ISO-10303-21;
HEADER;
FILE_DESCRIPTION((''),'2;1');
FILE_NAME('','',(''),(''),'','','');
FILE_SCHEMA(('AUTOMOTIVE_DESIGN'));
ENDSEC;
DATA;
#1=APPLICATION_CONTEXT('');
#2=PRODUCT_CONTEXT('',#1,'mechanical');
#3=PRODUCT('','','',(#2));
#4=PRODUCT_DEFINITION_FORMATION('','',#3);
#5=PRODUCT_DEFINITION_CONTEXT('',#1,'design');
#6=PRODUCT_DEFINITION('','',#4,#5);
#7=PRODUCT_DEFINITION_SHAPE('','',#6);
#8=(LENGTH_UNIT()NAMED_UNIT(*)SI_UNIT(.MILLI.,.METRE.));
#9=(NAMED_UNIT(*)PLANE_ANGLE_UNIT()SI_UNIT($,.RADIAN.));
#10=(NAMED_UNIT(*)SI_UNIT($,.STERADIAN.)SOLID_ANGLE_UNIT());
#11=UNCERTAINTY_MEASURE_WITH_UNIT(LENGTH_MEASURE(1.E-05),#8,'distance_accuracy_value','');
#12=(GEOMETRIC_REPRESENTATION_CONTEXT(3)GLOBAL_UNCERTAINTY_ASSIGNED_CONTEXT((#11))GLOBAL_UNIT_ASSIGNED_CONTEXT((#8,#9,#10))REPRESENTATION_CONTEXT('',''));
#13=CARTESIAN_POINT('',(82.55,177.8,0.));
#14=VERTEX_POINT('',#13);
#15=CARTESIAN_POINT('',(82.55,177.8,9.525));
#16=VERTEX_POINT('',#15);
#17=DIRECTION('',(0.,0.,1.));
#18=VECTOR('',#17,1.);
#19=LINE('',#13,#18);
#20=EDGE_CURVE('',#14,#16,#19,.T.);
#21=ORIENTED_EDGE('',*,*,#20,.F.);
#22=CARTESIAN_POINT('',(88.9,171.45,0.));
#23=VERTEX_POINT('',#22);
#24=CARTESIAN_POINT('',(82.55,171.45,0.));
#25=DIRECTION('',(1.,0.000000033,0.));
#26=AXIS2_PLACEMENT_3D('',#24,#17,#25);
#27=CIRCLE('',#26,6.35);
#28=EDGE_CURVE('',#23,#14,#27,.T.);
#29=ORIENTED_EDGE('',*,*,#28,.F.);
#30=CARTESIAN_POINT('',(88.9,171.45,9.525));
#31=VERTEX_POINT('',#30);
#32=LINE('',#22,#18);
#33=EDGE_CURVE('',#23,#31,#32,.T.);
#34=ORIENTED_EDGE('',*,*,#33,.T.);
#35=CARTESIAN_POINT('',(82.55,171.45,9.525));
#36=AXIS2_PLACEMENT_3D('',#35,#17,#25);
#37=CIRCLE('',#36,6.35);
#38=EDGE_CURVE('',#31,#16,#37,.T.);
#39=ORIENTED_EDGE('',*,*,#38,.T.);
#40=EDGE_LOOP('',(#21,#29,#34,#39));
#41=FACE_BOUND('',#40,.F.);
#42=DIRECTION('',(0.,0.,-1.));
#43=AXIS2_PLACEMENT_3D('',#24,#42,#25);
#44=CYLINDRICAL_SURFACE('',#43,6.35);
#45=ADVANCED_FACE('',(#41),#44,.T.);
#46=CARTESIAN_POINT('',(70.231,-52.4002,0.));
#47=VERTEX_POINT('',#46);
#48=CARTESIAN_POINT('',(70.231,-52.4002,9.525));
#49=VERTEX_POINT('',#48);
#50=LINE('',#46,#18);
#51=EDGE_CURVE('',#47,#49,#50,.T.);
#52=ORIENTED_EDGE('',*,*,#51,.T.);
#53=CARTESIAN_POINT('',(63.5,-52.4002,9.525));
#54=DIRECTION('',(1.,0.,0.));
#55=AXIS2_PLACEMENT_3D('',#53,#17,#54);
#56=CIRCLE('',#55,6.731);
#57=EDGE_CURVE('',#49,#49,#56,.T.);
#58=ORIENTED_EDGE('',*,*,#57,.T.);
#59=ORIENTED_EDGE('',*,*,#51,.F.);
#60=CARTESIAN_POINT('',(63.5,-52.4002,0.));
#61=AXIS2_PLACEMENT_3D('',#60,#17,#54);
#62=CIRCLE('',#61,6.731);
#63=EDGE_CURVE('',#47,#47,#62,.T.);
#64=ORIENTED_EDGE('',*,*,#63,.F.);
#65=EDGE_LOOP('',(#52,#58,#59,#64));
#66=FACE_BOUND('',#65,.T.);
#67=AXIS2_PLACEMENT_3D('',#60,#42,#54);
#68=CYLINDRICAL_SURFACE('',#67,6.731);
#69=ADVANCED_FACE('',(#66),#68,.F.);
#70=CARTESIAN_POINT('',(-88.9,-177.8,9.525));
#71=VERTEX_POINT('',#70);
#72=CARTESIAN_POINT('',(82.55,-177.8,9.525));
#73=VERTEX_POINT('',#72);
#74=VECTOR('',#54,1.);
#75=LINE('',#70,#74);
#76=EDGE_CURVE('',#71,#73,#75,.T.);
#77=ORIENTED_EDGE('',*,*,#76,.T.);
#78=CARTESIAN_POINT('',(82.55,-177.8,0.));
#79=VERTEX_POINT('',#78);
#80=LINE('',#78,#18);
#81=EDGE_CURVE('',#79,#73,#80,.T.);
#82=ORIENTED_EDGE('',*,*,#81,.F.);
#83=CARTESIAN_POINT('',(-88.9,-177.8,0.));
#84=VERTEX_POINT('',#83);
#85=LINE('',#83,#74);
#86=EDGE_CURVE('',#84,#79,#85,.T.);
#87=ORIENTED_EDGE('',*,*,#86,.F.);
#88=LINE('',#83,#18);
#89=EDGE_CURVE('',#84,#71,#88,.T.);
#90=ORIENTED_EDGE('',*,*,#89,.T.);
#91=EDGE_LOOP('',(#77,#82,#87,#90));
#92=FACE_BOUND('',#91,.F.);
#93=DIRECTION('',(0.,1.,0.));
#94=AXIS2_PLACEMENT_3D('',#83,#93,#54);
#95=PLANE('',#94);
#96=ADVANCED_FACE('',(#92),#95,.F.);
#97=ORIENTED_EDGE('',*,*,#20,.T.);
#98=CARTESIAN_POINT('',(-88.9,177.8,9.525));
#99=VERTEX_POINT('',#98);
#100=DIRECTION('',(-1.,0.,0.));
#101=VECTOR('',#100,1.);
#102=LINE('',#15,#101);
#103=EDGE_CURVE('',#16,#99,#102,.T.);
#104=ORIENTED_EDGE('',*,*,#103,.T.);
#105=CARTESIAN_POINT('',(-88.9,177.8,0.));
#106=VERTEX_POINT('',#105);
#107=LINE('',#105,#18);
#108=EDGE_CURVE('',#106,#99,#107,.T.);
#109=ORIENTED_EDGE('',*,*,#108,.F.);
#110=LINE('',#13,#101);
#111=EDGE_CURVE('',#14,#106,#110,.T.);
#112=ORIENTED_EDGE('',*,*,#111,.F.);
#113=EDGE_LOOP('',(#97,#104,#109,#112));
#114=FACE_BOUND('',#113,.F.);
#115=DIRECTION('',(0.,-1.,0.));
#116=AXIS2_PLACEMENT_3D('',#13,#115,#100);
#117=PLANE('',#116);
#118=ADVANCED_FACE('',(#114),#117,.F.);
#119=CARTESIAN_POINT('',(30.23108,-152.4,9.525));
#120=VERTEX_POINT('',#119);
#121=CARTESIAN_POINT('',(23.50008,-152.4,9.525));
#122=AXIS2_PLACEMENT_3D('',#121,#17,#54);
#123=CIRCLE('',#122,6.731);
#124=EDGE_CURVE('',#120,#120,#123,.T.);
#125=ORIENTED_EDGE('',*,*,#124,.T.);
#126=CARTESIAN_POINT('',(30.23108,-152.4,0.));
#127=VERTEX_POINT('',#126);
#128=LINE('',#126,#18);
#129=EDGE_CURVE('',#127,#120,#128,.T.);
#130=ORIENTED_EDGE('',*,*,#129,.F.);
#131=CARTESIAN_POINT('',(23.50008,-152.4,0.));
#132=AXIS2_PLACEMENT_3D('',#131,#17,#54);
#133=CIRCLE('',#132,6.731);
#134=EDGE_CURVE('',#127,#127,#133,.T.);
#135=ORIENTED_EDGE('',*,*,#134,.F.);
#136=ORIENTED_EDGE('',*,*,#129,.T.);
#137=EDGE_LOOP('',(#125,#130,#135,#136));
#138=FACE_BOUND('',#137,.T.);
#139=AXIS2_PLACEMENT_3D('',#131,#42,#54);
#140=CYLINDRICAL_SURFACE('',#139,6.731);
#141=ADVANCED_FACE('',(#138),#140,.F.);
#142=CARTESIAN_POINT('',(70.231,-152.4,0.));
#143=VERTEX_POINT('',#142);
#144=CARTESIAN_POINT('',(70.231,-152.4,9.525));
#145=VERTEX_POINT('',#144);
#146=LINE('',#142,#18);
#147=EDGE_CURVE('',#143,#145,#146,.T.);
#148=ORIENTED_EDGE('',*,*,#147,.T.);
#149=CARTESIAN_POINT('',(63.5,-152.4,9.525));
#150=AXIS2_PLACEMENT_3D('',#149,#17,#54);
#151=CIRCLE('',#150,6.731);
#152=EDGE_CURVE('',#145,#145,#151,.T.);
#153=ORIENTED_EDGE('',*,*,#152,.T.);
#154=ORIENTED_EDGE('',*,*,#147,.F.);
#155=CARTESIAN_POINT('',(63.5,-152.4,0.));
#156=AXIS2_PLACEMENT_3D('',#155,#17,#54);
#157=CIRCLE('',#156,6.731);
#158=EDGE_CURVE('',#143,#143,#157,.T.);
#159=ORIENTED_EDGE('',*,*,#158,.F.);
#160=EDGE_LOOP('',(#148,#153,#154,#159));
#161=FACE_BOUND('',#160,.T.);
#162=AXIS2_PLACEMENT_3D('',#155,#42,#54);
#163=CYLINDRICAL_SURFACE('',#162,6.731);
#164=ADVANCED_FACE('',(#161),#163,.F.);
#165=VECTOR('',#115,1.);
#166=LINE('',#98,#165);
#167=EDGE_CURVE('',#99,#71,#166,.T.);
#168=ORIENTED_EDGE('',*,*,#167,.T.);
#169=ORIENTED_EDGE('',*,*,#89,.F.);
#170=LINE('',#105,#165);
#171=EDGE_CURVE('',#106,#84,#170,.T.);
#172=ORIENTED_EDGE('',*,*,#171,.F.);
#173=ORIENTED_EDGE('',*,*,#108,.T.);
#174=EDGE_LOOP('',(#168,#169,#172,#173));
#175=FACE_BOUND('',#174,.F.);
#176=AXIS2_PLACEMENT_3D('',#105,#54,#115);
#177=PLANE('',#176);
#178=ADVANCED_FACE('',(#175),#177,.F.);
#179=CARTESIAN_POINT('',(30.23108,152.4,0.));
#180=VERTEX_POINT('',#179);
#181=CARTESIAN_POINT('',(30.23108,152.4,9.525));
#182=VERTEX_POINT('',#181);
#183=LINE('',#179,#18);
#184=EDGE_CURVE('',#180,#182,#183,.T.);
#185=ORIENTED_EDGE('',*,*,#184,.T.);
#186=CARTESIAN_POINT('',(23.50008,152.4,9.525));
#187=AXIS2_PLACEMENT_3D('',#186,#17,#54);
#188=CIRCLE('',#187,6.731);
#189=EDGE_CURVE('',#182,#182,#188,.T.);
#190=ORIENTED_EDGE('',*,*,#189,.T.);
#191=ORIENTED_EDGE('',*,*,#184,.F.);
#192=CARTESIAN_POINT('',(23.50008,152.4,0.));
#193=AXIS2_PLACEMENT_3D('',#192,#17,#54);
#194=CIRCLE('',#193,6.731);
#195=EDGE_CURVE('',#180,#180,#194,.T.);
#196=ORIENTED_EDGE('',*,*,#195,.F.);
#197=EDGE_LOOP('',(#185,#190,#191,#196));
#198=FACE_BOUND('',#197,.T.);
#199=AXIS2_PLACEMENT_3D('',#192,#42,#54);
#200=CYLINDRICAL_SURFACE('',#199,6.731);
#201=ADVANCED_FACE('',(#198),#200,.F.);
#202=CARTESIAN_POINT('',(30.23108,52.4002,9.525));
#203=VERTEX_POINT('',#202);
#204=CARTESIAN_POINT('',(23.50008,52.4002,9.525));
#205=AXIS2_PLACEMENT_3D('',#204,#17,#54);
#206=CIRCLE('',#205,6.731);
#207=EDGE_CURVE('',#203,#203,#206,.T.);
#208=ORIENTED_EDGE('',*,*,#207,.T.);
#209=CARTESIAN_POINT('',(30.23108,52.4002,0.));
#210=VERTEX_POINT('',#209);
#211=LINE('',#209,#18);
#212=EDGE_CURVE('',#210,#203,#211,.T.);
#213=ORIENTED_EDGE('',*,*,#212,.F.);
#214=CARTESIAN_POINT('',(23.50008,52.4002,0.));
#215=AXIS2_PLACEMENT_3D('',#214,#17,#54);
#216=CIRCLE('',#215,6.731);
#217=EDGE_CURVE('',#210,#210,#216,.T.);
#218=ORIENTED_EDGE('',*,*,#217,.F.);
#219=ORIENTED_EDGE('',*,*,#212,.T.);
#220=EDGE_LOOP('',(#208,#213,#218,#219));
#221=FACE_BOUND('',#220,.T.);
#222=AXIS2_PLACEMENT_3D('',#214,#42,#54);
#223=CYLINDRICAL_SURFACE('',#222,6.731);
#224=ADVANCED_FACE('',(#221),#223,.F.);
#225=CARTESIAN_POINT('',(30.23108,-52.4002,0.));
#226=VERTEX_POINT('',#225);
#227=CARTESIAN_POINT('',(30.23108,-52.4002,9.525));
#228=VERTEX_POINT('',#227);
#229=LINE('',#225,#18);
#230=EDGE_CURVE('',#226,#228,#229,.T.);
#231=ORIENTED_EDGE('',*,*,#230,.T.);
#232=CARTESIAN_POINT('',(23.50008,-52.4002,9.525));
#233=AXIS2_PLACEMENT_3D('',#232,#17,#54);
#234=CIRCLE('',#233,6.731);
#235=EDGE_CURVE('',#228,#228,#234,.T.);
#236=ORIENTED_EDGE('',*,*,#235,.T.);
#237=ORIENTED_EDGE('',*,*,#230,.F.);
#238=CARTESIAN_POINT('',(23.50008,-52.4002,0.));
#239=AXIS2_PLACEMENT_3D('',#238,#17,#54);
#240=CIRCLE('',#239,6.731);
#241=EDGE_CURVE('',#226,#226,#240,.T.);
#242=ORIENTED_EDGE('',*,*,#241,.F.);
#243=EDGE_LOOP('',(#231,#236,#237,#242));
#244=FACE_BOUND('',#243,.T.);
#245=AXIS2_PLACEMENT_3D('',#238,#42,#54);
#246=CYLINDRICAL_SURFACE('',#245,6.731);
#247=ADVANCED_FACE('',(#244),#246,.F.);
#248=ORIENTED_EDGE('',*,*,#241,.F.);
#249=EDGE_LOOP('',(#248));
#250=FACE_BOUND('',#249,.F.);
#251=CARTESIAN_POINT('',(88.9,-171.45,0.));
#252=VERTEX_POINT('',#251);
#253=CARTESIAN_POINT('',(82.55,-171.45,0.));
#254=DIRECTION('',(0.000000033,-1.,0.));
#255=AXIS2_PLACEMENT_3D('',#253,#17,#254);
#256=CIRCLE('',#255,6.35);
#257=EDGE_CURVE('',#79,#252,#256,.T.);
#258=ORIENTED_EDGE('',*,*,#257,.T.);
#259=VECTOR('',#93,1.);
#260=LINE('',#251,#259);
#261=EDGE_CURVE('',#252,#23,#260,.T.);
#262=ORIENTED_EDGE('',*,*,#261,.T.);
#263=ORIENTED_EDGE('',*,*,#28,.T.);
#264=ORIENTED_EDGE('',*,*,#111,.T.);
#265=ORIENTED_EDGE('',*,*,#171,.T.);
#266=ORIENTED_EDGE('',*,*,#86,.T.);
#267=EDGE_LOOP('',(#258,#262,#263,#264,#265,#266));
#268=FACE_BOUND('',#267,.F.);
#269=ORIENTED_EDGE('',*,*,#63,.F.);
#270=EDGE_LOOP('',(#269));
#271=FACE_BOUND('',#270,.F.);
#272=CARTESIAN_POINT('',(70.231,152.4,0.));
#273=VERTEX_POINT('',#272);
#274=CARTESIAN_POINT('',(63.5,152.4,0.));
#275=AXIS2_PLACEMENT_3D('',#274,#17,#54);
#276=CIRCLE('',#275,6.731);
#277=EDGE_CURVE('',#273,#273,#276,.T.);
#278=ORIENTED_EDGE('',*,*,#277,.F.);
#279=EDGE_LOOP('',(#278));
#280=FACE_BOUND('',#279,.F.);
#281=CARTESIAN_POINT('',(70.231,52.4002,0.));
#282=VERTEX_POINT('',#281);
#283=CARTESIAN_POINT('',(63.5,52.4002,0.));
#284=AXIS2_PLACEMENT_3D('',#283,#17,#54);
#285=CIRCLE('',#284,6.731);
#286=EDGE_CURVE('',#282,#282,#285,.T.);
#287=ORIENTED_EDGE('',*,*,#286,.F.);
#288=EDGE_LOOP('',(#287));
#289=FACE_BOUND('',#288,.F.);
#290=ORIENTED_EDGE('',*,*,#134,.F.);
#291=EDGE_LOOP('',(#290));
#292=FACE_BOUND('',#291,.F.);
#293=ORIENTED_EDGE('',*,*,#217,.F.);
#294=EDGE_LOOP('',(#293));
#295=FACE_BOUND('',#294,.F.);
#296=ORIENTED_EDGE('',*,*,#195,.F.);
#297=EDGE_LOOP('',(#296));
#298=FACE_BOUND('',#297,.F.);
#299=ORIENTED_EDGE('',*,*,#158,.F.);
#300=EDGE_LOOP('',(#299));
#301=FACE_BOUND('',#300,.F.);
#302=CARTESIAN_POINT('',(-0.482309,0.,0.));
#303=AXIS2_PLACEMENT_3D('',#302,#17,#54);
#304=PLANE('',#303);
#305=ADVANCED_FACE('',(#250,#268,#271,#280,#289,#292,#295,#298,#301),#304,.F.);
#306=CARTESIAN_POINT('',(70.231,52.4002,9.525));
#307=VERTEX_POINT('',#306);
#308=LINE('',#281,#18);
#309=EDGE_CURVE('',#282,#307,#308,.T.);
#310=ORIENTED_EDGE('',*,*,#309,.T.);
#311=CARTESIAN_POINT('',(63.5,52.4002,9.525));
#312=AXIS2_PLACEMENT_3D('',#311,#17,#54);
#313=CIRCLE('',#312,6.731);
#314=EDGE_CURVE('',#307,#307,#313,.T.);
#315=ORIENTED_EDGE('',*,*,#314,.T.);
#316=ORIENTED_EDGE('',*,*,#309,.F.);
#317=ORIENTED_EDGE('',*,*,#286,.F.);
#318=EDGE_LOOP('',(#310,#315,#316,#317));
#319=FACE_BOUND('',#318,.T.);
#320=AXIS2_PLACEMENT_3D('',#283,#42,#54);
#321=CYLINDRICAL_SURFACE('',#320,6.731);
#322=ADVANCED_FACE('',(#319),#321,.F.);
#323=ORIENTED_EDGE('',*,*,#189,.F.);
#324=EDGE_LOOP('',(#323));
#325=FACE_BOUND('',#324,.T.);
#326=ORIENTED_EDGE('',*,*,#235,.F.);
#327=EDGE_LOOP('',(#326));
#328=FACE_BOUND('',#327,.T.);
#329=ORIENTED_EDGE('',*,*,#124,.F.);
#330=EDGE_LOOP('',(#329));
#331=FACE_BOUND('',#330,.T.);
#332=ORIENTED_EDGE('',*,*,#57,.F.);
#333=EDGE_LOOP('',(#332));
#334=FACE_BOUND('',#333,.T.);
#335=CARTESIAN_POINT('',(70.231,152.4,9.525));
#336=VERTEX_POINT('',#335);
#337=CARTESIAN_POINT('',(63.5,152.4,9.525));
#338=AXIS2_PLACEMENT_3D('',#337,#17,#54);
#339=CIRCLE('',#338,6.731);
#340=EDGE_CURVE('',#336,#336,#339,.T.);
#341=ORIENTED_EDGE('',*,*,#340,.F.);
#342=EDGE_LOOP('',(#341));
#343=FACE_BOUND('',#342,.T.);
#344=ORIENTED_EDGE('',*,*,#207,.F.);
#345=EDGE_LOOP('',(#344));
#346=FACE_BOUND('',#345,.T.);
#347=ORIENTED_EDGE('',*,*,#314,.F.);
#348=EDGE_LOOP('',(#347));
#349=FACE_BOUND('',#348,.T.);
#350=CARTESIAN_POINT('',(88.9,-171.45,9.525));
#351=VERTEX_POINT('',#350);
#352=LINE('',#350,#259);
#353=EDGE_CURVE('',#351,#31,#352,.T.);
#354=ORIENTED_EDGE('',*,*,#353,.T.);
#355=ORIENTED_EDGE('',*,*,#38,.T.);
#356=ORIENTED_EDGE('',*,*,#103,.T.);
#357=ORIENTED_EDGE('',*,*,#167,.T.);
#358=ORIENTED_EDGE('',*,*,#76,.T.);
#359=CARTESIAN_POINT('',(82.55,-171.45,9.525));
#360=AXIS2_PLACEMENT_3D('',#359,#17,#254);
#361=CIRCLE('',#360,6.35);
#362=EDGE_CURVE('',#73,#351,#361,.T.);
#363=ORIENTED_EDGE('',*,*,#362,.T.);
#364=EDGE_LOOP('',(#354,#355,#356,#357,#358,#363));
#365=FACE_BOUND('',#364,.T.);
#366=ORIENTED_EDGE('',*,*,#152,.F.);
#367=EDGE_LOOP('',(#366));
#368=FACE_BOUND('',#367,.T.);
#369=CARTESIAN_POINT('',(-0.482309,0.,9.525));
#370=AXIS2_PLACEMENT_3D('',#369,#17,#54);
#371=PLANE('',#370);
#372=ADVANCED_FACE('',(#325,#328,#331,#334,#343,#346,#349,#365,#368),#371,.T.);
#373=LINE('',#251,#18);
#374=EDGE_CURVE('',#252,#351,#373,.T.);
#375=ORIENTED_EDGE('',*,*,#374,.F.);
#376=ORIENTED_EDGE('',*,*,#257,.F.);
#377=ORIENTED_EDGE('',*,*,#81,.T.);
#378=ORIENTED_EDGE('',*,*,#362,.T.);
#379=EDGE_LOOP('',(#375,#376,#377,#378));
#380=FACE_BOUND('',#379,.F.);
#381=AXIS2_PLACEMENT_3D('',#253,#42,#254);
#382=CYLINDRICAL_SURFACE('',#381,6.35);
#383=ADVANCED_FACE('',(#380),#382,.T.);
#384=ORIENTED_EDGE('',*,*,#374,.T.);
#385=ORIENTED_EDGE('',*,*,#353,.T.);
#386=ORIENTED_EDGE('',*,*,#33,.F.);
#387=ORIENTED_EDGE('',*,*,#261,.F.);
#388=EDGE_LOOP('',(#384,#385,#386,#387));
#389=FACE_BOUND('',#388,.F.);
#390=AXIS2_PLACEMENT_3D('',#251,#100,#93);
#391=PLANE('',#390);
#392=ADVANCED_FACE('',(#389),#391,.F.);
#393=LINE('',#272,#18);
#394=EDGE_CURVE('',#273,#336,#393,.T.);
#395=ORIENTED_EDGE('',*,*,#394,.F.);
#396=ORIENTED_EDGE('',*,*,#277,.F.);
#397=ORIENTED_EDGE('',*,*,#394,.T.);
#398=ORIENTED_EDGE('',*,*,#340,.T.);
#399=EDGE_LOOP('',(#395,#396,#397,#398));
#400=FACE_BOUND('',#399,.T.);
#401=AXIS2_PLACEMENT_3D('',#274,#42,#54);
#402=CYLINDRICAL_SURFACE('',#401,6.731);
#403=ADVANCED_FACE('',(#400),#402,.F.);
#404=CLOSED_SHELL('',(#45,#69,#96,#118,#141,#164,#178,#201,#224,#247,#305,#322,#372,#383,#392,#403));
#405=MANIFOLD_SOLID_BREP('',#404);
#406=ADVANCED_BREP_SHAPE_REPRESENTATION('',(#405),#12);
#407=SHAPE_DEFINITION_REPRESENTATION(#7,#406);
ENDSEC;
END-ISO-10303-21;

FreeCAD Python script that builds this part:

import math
import FreeCAD as App
import Part
import Sketcher
from FreeCAD import Vector
Q = App.Units.Quantity

doc = App.newDocument("Part")
body = doc.addObject("PartDesign::Body", "Body")

# Sketch on XY plane
sketch1 = body.newObject("Sketcher::SketchObject", "Sketch")
sketch1.AttachmentSupport = (doc.getObject("XY_Plane"), [""])
sketch1.MapMode = "FlatFace"
sketch1.addGeometry(Part.LineSegment(Vector(-88.9, 177.8, 0), Vector(-88.9, -177.8, 0)), False)
sketch1.addGeometry(Part.LineSegment(Vector(-88.9, -177.8, 0), Vector(82.55, -177.8, 0)), False)
sketch1.addGeometry(Part.ArcOfCircle(Part.Circle(Vector(82.55, -171.45, 0), Vector(0, 0, 1), 6.35), math.radians(-89.999998), math.radians(-0.000002)), False)
sketch1.addGeometry(Part.LineSegment(Vector(88.9, -171.45, 0), Vector(88.9, 171.45, 0)), False)
sketch1.addGeometry(Part.ArcOfCircle(Part.Circle(Vector(82.55, 171.45, 0), Vector(0, 0, 1), 6.35), math.radians(0.000002), math.radians(89.999998)), False)
sketch1.addGeometry(Part.LineSegment(Vector(82.55, 177.8, 0), Vector(-88.9, 177.8, 0)), False)
sketch1.addGeometry(Part.Circle(Vector(23.50008, -152.4, 0), Vector(0, 0, 1), 6.731), False)
sketch1.addGeometry(Part.Circle(Vector(23.50008, -52.4002, 0), Vector(0, 0, 1), 6.731), False)
sketch1.addGeometry(Part.Circle(Vector(63.5, -152.4, 0), Vector(0, 0, 1), 6.731), False)
sketch1.addGeometry(Part.Circle(Vector(63.5, -52.4002, 0), Vector(0, 0, 1), 6.731), False)
sketch1.addGeometry(Part.Circle(Vector(23.50008, 52.4002, 0), Vector(0, 0, 1), 6.731), False)
sketch1.addGeometry(Part.Circle(Vector(23.50008, 152.4, 0), Vector(0, 0, 1), 6.731), False)
sketch1.addGeometry(Part.Circle(Vector(63.5, 52.4002, 0), Vector(0, 0, 1), 6.731), False)
sketch1.addGeometry(Part.Circle(Vector(63.5, 152.4, 0), Vector(0, 0, 1), 6.731), False)
sketch1.addConstraint(Sketcher.Constraint("Coincident", 0, 2, 1, 1))
sketch1.addConstraint(Sketcher.Constraint("Tangent", 1, 2, 2, 1))
sketch1.addConstraint(Sketcher.Constraint("Tangent", 2, 2, 3, 1))
sketch1.addConstraint(Sketcher.Constraint("Tangent", 3, 2, 4, 1))
sketch1.addConstraint(Sketcher.Constraint("Tangent", 4, 2, 5, 1))
sketch1.addConstraint(Sketcher.Constraint("Coincident", 5, 2, 0, 1))
sketch1.addConstraint(Sketcher.Constraint("Vertical", 0))
sketch1.addConstraint(Sketcher.Constraint("Horizontal", 1))
sketch1.addConstraint(Sketcher.Constraint("Vertical", 3))
sketch1.addConstraint(Sketcher.Constraint("Horizontal", 5))
sketch1.addConstraint(Sketcher.Constraint("Equal", 2, 4))
sketch1.addConstraint(Sketcher.Constraint("Equal", 6, 7))
sketch1.addConstraint(Sketcher.Constraint("Equal", 7, 8))
sketch1.addConstraint(Sketcher.Constraint("Equal", 8, 9))
sketch1.addConstraint(Sketcher.Constraint("Equal", 9, 10))
sketch1.addConstraint(Sketcher.Constraint("Equal", 10, 11))
sketch1.addConstraint(Sketcher.Constraint("Equal", 11, 12))
sketch1.addConstraint(Sketcher.Constraint("Equal", 12, 13))
sketch1.addConstraint(Sketcher.Constraint("Symmetric", 7, 3, 10, 3, -1))
sketch1.addConstraint(Sketcher.Constraint("Symmetric", 6, 3, 11, 3, -1))
sketch1.addConstraint(Sketcher.Constraint("Symmetric", 9, 3, 12, 3, -1))
sketch1.addConstraint(Sketcher.Constraint("Symmetric", 8, 3, 13, 3, -1))
sketch1.addConstraint(Sketcher.Constraint("Horizontal", 6, 3, 8, 3))
sketch1.addConstraint(Sketcher.Constraint("Horizontal", 7, 3, 9, 3))
sketch1.addConstraint(Sketcher.Constraint("Vertical", 6, 3, 7, 3))
sketch1.addConstraint(Sketcher.Constraint("Vertical", 8, 3, 9, 3))
sketch1.addConstraint(Sketcher.Constraint("Diameter", 6, Q("0.53 in")))
sketch1.addConstraint(Sketcher.Constraint("DistanceY", 0, 2, 0, 1, Q("14 in")))
sketch1.addConstraint(Sketcher.Constraint("Radius", 2, Q("0.25 in")))
sketch1.addConstraint(Sketcher.Constraint("DistanceY", 6, 3, -1, 1, Q("6 in")))
sketch1.addConstraint(Sketcher.Constraint("DistanceY", 0, 2, -1, 1, Q("7 in")))
sketch1.addConstraint(Sketcher.Constraint("DistanceX", 0, 2, 8, 3, Q("6 in")))
sketch1.addConstraint(Sketcher.Constraint("DistanceX", 8, 3, 2, 2, Q("1 in")))
sketch1.addConstraint(Sketcher.Constraint("DistanceX", -1, 1, 8, 3, Q("2.5 in")))
sketch1.addConstraint(Sketcher.Constraint("DistanceY", 7, 3, -1, 1, Q("2.063 in")))
sketch1.addConstraint(Sketcher.Constraint("DistanceX", -1, 1, 6, 3, Q("0.9252 in")))
pad1 = body.newObject("PartDesign::Pad", "Pad")
pad1.Profile = sketch1
pad1.Length = Q("0.375 in")

doc.recompute()
